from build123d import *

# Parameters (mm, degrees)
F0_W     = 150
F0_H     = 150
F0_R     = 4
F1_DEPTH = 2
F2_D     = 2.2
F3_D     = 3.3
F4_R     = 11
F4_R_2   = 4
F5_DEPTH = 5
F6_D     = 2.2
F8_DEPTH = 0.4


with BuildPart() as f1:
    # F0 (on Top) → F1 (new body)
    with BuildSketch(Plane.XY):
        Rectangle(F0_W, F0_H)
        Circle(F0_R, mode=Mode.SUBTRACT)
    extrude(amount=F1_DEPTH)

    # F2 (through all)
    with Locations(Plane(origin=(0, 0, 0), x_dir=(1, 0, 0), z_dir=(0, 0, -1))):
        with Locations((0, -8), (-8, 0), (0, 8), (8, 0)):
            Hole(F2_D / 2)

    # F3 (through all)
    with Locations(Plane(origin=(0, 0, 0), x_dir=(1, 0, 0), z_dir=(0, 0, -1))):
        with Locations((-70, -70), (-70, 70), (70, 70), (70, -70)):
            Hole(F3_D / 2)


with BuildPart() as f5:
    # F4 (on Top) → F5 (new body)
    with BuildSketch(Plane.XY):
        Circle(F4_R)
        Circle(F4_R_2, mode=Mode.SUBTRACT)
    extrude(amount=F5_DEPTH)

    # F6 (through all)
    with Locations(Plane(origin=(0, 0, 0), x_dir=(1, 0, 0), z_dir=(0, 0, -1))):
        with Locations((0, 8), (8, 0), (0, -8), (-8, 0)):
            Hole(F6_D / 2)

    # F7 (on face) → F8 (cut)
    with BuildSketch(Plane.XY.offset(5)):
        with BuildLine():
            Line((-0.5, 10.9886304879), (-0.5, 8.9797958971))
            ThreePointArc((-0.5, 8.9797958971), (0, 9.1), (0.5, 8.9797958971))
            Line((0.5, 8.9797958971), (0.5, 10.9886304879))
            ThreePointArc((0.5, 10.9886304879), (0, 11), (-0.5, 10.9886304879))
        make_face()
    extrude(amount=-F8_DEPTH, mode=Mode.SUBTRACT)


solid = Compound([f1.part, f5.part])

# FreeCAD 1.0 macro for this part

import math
import FreeCAD as App
import Part
import Sketcher

V = App.Vector


def add_polygon(sketch, points):
    """Adds a closed chain of lines whose ends are joined by coincident constraints."""
    first, n = sketch.GeometryCount, len(points)
    for a, b in zip(points, points[1:] + points[:1]):
        sketch.addGeometry(Part.LineSegment(App.Vector(*a, 0), App.Vector(*b, 0)), False)
    for i in range(n):
        sketch.addConstraint(Sketcher.Constraint("Coincident", first + i, 2, first + (i + 1) % n, 1))

doc = App.newDocument("Part")
params = doc.addObject("Spreadsheet::Sheet", "Params")
for row, (alias, value) in enumerate([
    ("sketch1_diameter", "8 mm"),
    ("sketch1_width", "150 mm"),
    ("pad1_length", "2 mm"),
    ("sketch2_diameter", "2.2 mm"),
    ("hole_diameter", "2.2 mm"),
    ("sketch3_diameter", "3.3 mm"),
    ("hole2_diameter", "3.3 mm"),
    ("sketch4_diameter", "22 mm"),
    ("sketch4_diameter2", "8 mm"),
    ("pad2_length", "5 mm"),
    ("sketch5_diameter", "2.2 mm"),
    ("hole3_diameter", "2.2 mm"),
    ("sketch6_radius", "11 mm"),
    ("sketch6_radius2", "1.1 mm"),
    ("pocket1_length", "0.4 mm"),
], start=1):
    params.set(f"A{row}", alias)
    params.set(f"B{row}", "=" + value)
    params.setAlias(f"B{row}", alias)

body = doc.addObject("PartDesign::Body", "Body")

# Sketch on XY plane
sketch1 = body.newObject("Sketcher::SketchObject", "Sketch")
sketch1.AttachmentSupport = (doc.getObject("XY_Plane"), [""])
sketch1.MapMode = "FlatFace"
add_polygon(sketch1, [(-75, 75), (-75, -75), (75, -75), (75, 75)])  # lines 0-3
sketch1.addGeometry(Part.Circle(V(0, 0, 0), V(0, 0, 1), 4), False)  # 4
sketch1.addConstraint(Sketcher.Constraint("Vertical", 0))
sketch1.addConstraint(Sketcher.Constraint("Horizontal", 1))
sketch1.addConstraint(Sketcher.Constraint("Vertical", 2))
sketch1.addConstraint(Sketcher.Constraint("Horizontal", 3))
sketch1.addConstraint(Sketcher.Constraint("Coincident", 4, 3, -1, 1))
sketch1.addConstraint(Sketcher.Constraint("Symmetric", 0, 2, 2, 2, -1, 1))
sketch1.addConstraint(Sketcher.Constraint("Equal", 3, 0))
sketch1.addConstraint(Sketcher.Constraint("Diameter", 4, 8.0))
sketch1.addConstraint(Sketcher.Constraint("DistanceX", 1, 1, 1, 2, 150.0))
sketch1.setExpression("Constraints[11]", "Params.sketch1_diameter")
sketch1.setExpression("Constraints[12]", "Params.sketch1_width")
pad1 = body.newObject("PartDesign::Pad", "Pad")
pad1.Profile = sketch1
pad1.setExpression("Length", "Params.pad1_length")

# Sketch on XY plane
sketch2 = body.newObject("Sketcher::SketchObject", "Sketch001")
sketch2.AttachmentSupport = (doc.getObject("XY_Plane"), [""])
sketch2.MapMode = "FlatFace"
sketch2.addGeometry(Part.Circle(V(0, 8, 0), V(0, 0, 1), 1.1), False)
sketch2.addGeometry(Part.Circle(V(-8, 0, 0), V(0, 0, 1), 1.1), False)
sketch2.addGeometry(Part.Circle(V(0, -8, 0), V(0, 0, 1), 1.1), False)
sketch2.addGeometry(Part.Circle(V(8, 0, 0), V(0, 0, 1), 1.1), False)
sketch2.addConstraint(Sketcher.Constraint("Equal", 0, 1))
sketch2.addConstraint(Sketcher.Constraint("Equal", 1, 2))
sketch2.addConstraint(Sketcher.Constraint("Equal", 2, 3))
sketch2.addConstraint(Sketcher.Constraint("Symmetric", 0, 3, 2, 3, -1, 1))
sketch2.addConstraint(Sketcher.Constraint("Symmetric", 1, 3, 3, 3, -1, 1))
sketch2.addConstraint(Sketcher.Constraint("PointOnObject", 0, 3, -2))
sketch2.addConstraint(Sketcher.Constraint("PointOnObject", 1, 3, -1))
sketch2.addConstraint(Sketcher.Constraint("Diameter", 0, 2.2))
sketch2.addConstraint(Sketcher.Constraint("DistanceY", -1, 1, 0, 3, 8.0))
sketch2.addConstraint(Sketcher.Constraint("DistanceX", 1, 3, -1, 1, 8.0))
sketch2.setExpression("Constraints[7]", "Params.sketch2_diameter")
doc.recompute()
hole = body.newObject("PartDesign::Hole", "Hole")
hole.Profile = sketch2
hole.ThreadType = "None"
hole.setExpression("Diameter", "Params.hole_diameter")
hole.DepthType = "ThroughAll"
hole.Reversed = True

# Sketch on XY plane
sketch3 = body.newObject("Sketcher::SketchObject", "Sketch002")
sketch3.AttachmentSupport = (doc.getObject("XY_Plane"), [""])
sketch3.MapMode = "FlatFace"
sketch3.addGeometry(Part.Circle(V(-70, 70, 0), V(0, 0, 1), 1.6), False)
sketch3.addGeometry(Part.Circle(V(-70, -70, 0), V(0, 0, 1), 1.6), False)
sketch3.addGeometry(Part.Circle(V(70, -70, 0), V(0, 0, 1), 1.6), False)
sketch3.addGeometry(Part.Circle(V(70, 70, 0), V(0, 0, 1), 1.6), False)
sketch3.addConstraint(Sketcher.Constraint("Equal", 0, 1))
sketch3.addConstraint(Sketcher.Constraint("Equal", 1, 2))
sketch3.addConstraint(Sketcher.Constraint("Equal", 2, 3))
sketch3.addConstraint(Sketcher.Constraint("Symmetric", 0, 3, 2, 3, -1, 1))
sketch3.addConstraint(Sketcher.Constraint("Symmetric", 1, 3, 3, 3, -1, 1))
sketch3.addConstraint(Sketcher.Constraint("Symmetric", 1, 3, 2, 3, -2))
sketch3.addConstraint(Sketcher.Constraint("Diameter", 0, 3.3))
sketch3.addConstraint(Sketcher.Constraint("DistanceX", 0, 3, -1, 1, 70.0))
sketch3.addConstraint(Sketcher.Constraint("DistanceY", -1, 1, 0, 3, 70.0))
sketch3.setExpression("Constraints[6]", "Params.sketch3_diameter")
doc.recompute()
hole2 = body.newObject("PartDesign::Hole", "Hole001")
hole2.Profile = sketch3
hole2.ThreadType = "None"
hole2.setExpression("Diameter", "Params.hole2_diameter")
hole2.DepthType = "ThroughAll"
hole2.Reversed = True
body2 = doc.addObject("PartDesign::Body", "Body001")

# Sketch on XY plane
sketch4 = body2.newObject("Sketcher::SketchObject", "Sketch003")
sketch4.AttachmentSupport = (doc.getObject("XY_Plane001"), [""])
sketch4.MapMode = "FlatFace"
sketch4.addGeometry(Part.Circle(V(0, 0, 0), V(0, 0, 1), 11), False)
sketch4.addGeometry(Part.Circle(V(0, 0, 0), V(0, 0, 1), 4), False)
sketch4.addConstraint(Sketcher.Constraint("Coincident", 0, 3, -1, 1))
sketch4.addConstraint(Sketcher.Constraint("Coincident", 1, 3, -1, 1))
sketch4.addConstraint(Sketcher.Constraint("Diameter", 0, 22.0))
sketch4.addConstraint(Sketcher.Constraint("Diameter", 1, 8.0))
sketch4.setExpression("Constraints[2]", "Params.sketch4_diameter")
sketch4.setExpression("Constraints[3]", "Params.sketch4_diameter2")
pad2 = body2.newObject("PartDesign::Pad", "Pad001")
pad2.Profile = sketch4
pad2.setExpression("Length", "Params.pad2_length")

# Sketch on XY plane
sketch5 = body2.newObject("Sketcher::SketchObject", "Sketch004")
sketch5.AttachmentSupport = (doc.getObject("XY_Plane001"), [""])
sketch5.MapMode = "FlatFace"
sketch5.addGeometry(Part.Circle(V(0, -8, 0), V(0, 0, 1), 1.1), False)
sketch5.addGeometry(Part.Circle(V(8, 0, 0), V(0, 0, 1), 1.1), False)
sketch5.addGeometry(Part.Circle(V(0, 8, 0), V(0, 0, 1), 1.1), False)
sketch5.addGeometry(Part.Circle(V(-8, 0, 0), V(0, 0, 1), 1.1), False)
sketch5.addConstraint(Sketcher.Constraint("Equal", 0, 1))
sketch5.addConstraint(Sketcher.Constraint("Equal", 1, 2))
sketch5.addConstraint(Sketcher.Constraint("Equal", 2, 3))
sketch5.addConstraint(Sketcher.Constraint("Symmetric", 0, 3, 2, 3, -1, 1))
sketch5.addConstraint(Sketcher.Constraint("Symmetric", 1, 3, 3, 3, -1, 1))
sketch5.addConstraint(Sketcher.Constraint("PointOnObject", 0, 3, -2))
sketch5.addConstraint(Sketcher.Constraint("PointOnObject", 1, 3, -1))
sketch5.addConstraint(Sketcher.Constraint("Diameter", 0, 2.2))
sketch5.addConstraint(Sketcher.Constraint("DistanceY", 0, 3, -1, 1, 8.0))
sketch5.addConstraint(Sketcher.Constraint("DistanceX", -1, 1, 1, 3, 8.0))
sketch5.setExpression("Constraints[7]", "Params.sketch5_diameter")
doc.recompute()
hole3 = body2.newObject("PartDesign::Hole", "Hole002")
hole3.Profile = sketch5
hole3.ThreadType = "None"
hole3.setExpression("Diameter", "Params.hole3_diameter")
hole3.DepthType = "ThroughAll"
hole3.Reversed = True

# Sketch on XY plane
sketch6 = body2.newObject("Sketcher::SketchObject", "Sketch005")
sketch6.AttachmentSupport = (doc.getObject("XY_Plane001"), [""])
sketch6.MapMode = "FlatFace"
sketch6.AttachmentOffset = App.Placement(V(0, 0, 5), App.Rotation())
sketch6.addGeometry(Part.LineSegment(V(-0.5, 11, 0), V(-0.5, 9, 0)), False)
sketch6.addGeometry(Part.ArcOfCircle(Part.Circle(V(0, 8, 0), V(0, 0, 1), 1.1), math.radians(63), math.radians(117)), False)
sketch6.addGeometry(Part.LineSegment(V(0.5, 9, 0), V(0.5, 11, 0)), False)
sketch6.addGeometry(Part.ArcOfCircle(Part.Circle(V(0, 0, 0), V(0, 0, 1), 11), math.radians(87.39), math.radians(92.61)), False)
sketch6.addConstraint(Sketcher.Constraint("Coincident", 0, 2, 1, 2))
sketch6.addConstraint(Sketcher.Constraint("Coincident", 1, 1, 2, 1))
sketch6.addConstraint(Sketcher.Constraint("Coincident", 2, 2, 3, 1))
sketch6.addConstraint(Sketcher.Constraint("Coincident", 3, 2, 0, 1))
sketch6.addConstraint(Sketcher.Constraint("Vertical", 0))
sketch6.addConstraint(Sketcher.Constraint("Vertical", 2))
sketch6.addConstraint(Sketcher.Constraint("Coincident", 3, 3, -1, 1))
sketch6.addConstraint(Sketcher.Constraint("Symmetric", 0, 2, 1, 1, -2))
sketch6.addConstraint(Sketcher.Constraint("Radius", 3, 11.0))
sketch6.addConstraint(Sketcher.Constraint("Radius", 1, 1.1))
sketch6.addConstraint(Sketcher.Constraint("DistanceY", -1, 1, 1, 3, 8.0))
sketch6.addConstraint(Sketcher.Constraint("DistanceX", 0, 2, 1, 1, 1.0))
sketch6.setExpression("Constraints[8]", "Params.sketch6_radius")
sketch6.setExpression("Constraints[9]", "Params.sketch6_radius2")
pocket1 = body2.newObject("PartDesign::Pocket", "Pocket")
pocket1.Profile = sketch6
pocket1.setExpression("Length", "Params.pocket1_length")

doc.recompute()
